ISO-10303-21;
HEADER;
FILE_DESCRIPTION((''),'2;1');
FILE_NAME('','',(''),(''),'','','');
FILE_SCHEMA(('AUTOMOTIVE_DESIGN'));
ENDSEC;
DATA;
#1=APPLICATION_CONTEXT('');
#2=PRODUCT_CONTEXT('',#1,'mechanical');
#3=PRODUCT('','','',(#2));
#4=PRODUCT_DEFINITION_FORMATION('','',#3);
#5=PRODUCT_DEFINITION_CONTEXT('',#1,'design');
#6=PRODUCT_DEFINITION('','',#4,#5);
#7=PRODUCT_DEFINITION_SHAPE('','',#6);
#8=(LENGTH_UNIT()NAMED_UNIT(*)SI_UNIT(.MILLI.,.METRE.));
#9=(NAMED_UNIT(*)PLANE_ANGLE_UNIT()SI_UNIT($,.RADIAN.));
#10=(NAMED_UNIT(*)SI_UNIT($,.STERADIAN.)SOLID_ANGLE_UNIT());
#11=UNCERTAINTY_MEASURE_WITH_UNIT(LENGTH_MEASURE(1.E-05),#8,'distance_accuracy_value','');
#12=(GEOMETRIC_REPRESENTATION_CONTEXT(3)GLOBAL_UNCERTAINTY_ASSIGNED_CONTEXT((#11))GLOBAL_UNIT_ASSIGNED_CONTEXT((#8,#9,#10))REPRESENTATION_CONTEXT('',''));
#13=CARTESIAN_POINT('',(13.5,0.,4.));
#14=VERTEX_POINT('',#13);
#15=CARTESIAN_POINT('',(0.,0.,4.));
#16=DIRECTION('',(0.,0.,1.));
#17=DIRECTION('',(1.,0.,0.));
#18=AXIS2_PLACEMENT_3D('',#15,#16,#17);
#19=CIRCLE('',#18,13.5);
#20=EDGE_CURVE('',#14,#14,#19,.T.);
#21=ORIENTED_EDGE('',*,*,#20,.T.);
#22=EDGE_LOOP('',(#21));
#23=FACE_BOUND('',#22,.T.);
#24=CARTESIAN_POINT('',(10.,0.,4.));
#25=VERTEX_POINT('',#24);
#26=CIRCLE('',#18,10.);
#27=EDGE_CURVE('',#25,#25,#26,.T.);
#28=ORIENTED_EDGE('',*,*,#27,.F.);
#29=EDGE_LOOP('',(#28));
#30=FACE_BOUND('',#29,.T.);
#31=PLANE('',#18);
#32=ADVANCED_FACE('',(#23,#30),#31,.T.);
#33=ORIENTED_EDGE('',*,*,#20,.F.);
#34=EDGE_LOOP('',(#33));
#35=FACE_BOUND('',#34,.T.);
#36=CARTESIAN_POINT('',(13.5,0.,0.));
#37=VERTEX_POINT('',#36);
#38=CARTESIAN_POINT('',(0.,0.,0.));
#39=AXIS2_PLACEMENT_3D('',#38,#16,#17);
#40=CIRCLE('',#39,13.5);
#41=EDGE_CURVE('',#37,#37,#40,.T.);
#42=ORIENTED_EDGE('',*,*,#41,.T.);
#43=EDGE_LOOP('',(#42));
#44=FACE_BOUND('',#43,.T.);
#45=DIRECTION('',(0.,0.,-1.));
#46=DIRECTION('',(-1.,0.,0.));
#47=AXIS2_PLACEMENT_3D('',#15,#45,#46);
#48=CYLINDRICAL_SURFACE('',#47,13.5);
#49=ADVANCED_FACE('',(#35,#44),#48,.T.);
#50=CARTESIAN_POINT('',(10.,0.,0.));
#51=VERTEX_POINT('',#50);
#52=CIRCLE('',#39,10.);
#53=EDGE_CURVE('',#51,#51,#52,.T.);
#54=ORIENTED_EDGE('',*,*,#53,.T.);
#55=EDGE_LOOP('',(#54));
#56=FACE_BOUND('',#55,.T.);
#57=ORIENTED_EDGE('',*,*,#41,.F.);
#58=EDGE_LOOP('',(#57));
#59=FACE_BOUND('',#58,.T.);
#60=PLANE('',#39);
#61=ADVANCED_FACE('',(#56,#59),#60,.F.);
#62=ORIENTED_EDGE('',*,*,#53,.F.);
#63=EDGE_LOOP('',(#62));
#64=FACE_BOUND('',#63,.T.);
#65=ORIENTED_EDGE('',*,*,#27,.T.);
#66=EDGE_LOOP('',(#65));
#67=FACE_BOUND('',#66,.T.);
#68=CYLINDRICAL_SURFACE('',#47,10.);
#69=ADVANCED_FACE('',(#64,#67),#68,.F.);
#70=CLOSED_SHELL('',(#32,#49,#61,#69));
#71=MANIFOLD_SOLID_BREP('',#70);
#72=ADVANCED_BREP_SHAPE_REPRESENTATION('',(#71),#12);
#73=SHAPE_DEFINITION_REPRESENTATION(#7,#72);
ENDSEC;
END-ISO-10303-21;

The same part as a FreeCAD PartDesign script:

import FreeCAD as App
import Part
import Sketcher

V = App.Vector
Q = App.Units.Quantity

doc = App.newDocument("Part")
body = doc.addObject("PartDesign::Body", "Body")

# Sketch on XY plane
sketch1 = doc.addObject("Sketcher::SketchObject", "Sketch")
body.addObject(sketch1)
sketch1.AttachmentSupport = (doc.XY_Plane, [""])
sketch1.MapMode = "FlatFace"
sketch1.addGeometry([
    Part.Circle(V(0, 0, 0), V(0, 0, 1), 14),
    Part.Circle(V(0, 0, 0), V(0, 0, 1), 10),
], False)
sketch1.addConstraint([
    Sketcher.Constraint("Coincident", 0, 3, -1, 1),
    Sketcher.Constraint("Coincident", 1, 3, -1, 1),
    Sketcher.Constraint("Diameter", 0, Q("27 mm")),
    Sketcher.Constraint("Diameter", 1, Q("20 mm")),
])
pad1 = doc.addObject("PartDesign::Pad", "Pad")
body.addObject(pad1)
pad1.Profile = sketch1
pad1.Length = 4

doc.recompute()
